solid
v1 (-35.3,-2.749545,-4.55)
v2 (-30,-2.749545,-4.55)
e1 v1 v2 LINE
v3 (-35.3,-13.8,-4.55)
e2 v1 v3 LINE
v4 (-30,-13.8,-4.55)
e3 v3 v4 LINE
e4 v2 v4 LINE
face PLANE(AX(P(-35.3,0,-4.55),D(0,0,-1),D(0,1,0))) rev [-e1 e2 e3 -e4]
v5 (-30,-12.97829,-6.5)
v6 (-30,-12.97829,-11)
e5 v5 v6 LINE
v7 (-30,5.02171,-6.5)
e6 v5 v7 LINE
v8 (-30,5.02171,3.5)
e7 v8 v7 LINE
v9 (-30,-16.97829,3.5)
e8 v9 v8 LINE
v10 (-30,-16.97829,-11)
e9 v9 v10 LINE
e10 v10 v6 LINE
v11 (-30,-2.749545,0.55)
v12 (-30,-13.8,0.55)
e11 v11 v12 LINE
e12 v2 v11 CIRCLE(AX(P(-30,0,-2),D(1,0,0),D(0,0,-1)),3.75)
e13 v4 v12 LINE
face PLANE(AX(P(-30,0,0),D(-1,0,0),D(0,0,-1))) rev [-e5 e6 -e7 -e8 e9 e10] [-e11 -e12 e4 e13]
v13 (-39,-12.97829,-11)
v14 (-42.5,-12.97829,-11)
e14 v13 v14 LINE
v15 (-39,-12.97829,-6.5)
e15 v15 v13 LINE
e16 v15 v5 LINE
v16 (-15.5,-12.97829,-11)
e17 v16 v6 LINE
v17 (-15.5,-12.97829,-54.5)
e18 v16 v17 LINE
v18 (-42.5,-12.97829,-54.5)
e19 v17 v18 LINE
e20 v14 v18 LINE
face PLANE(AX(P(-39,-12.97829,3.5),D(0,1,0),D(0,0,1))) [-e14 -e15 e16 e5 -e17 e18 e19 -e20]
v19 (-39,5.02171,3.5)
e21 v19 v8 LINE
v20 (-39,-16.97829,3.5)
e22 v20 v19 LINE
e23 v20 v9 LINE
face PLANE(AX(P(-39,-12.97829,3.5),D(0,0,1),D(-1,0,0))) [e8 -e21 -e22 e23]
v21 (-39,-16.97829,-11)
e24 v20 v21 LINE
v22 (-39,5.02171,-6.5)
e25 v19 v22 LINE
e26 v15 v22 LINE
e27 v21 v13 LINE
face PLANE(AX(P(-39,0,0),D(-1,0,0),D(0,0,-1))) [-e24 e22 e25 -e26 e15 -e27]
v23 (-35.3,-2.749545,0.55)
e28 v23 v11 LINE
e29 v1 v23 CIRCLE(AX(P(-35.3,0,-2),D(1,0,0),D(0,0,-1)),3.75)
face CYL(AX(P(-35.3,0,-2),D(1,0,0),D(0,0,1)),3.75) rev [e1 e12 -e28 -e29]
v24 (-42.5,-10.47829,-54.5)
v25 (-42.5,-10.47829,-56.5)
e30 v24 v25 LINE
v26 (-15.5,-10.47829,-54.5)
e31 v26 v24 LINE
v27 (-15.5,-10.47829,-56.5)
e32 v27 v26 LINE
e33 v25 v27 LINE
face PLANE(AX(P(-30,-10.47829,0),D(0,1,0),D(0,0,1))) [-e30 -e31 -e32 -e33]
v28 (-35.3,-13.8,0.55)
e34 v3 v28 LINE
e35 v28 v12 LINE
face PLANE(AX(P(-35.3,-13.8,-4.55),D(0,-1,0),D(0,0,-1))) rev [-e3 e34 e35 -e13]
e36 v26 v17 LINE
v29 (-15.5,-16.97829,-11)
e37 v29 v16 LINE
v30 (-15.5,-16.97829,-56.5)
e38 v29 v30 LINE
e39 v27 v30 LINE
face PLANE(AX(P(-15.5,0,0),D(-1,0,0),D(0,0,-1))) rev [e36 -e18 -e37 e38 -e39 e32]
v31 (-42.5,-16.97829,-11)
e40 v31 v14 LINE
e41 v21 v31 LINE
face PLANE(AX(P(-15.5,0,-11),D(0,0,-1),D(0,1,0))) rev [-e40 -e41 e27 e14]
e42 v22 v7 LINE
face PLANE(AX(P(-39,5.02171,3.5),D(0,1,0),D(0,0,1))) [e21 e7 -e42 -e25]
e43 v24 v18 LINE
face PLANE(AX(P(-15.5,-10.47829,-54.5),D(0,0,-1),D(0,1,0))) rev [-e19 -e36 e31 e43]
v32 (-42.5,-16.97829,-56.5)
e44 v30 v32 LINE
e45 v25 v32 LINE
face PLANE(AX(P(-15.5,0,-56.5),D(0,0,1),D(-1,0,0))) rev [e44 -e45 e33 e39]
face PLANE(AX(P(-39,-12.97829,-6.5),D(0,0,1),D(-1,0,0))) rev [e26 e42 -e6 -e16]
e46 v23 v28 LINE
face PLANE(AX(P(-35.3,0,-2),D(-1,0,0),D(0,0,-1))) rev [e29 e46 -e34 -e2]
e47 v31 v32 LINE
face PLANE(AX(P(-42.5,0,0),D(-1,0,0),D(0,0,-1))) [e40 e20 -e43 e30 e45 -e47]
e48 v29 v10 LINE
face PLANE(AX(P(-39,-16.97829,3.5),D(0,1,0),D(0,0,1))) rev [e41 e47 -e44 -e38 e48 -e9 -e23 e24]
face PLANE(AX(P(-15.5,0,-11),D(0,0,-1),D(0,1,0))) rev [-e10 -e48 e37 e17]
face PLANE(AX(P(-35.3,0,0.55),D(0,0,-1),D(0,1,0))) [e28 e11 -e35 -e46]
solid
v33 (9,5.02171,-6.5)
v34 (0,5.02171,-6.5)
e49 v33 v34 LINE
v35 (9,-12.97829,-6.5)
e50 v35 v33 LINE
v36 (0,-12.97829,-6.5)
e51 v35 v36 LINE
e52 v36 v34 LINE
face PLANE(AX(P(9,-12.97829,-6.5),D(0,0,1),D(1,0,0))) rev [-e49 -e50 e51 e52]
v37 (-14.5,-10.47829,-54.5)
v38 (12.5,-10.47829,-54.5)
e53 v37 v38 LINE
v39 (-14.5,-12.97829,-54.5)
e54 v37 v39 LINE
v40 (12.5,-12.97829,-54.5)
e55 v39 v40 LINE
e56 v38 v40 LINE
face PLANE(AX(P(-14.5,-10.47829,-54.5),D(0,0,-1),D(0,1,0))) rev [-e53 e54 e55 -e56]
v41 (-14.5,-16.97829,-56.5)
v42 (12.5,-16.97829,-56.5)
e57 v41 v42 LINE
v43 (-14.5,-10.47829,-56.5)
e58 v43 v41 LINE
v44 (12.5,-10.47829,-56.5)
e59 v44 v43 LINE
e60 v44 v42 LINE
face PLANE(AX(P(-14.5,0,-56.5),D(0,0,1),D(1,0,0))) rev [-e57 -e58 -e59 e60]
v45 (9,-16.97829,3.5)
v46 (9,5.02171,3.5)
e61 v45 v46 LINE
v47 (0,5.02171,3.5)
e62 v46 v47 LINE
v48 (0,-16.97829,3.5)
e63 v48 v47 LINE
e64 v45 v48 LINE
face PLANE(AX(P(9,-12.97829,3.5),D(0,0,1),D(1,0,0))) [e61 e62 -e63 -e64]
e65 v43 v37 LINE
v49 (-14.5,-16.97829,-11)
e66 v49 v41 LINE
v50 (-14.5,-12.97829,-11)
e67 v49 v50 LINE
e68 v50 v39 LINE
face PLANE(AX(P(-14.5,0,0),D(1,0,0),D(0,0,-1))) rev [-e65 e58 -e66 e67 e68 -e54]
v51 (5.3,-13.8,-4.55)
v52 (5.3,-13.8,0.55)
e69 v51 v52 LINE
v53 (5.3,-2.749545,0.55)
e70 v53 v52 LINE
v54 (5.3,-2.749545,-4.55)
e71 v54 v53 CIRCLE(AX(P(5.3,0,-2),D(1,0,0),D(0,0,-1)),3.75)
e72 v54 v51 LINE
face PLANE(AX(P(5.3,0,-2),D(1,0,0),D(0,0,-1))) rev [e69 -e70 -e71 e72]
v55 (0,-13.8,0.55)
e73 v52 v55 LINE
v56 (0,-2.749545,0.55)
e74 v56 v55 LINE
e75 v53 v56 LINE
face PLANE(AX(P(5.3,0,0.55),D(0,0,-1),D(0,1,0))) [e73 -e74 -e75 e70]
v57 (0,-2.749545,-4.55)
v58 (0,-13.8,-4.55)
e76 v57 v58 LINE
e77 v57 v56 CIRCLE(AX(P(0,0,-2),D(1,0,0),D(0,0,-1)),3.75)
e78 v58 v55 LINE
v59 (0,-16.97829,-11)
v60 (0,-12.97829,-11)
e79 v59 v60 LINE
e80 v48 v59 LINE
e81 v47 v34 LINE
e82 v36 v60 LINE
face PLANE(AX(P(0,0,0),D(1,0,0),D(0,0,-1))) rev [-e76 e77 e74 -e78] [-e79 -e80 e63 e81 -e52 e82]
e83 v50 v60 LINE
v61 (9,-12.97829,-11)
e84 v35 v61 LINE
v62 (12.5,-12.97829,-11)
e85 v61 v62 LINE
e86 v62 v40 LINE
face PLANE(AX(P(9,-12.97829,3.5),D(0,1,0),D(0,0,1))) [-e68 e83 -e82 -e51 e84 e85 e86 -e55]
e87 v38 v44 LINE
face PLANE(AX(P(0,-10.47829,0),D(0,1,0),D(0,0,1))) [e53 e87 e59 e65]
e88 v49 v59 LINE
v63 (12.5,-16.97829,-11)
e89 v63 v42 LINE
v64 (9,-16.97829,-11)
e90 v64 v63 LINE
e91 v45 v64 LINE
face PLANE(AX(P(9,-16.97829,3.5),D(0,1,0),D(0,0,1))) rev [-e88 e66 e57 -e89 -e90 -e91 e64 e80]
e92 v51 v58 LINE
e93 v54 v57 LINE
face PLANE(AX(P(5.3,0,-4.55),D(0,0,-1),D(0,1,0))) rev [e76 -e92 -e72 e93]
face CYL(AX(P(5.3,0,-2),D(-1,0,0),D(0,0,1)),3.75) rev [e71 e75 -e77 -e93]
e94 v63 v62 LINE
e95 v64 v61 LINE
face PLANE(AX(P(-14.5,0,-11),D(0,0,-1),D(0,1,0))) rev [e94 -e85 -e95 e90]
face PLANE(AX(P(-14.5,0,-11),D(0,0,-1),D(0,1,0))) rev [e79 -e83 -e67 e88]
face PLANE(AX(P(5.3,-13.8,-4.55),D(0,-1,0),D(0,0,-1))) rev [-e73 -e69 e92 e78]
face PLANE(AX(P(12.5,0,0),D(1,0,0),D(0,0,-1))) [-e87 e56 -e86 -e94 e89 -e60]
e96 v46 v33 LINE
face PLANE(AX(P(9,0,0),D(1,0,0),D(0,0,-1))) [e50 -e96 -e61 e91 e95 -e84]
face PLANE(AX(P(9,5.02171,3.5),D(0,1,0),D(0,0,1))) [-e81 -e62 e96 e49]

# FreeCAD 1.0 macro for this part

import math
import FreeCAD as App
import Part
import Sketcher
from FreeCAD import Vector
Q = App.Units.Quantity


def add_polygon(sketch, points):
    """Adds a closed chain of lines whose ends are joined by coincident constraints."""
    first, n = sketch.GeometryCount, len(points)
    for a, b in zip(points, points[1:] + points[:1]):
        sketch.addGeometry(Part.LineSegment(App.Vector(*a, 0), App.Vector(*b, 0)), False)
    for i in range(n):
        sketch.addConstraint(Sketcher.Constraint("Coincident", first + i, 2, first + (i + 1) % n, 1))

doc = App.newDocument("Part")
body = doc.addObject("PartDesign::Body", "Body")

# Sketch on YZ plane
sketch1 = body.newObject("Sketcher::SketchObject", "Sketch")
sketch1.AttachmentSupport = (doc.getObject("YZ_Plane"), [""])
sketch1.MapMode = "FlatFace"
add_polygon(sketch1, [(5, 3.5), (-17, 3.5), (-17, -11), (-13, -11), (-13, -6.5), (5, -6.5)])  # lines 0-5
sketch1.addConstraint(Sketcher.Constraint("Horizontal", 0))
sketch1.addConstraint(Sketcher.Constraint("Vertical", 1))
sketch1.addConstraint(Sketcher.Constraint("Horizontal", 2))
sketch1.addConstraint(Sketcher.Constraint("Vertical", 3))
sketch1.addConstraint(Sketcher.Constraint("Horizontal", 4))
sketch1.addConstraint(Sketcher.Constraint("Vertical", 5))
sketch1.addConstraint(Sketcher.Constraint("DistanceX", 0, 2, 0, 1, Q("22 mm")))
sketch1.addConstraint(Sketcher.Constraint("DistanceX", 2, 1, 2, 2, Q("4 mm")))
sketch1.addConstraint(Sketcher.Constraint("DistanceY", 5, 1, 5, 2, Q("10 mm")))
sketch1.addConstraint(Sketcher.Constraint("DistanceY", 1, 2, 1, 1, Q("14.5 mm")))
sketch1.addConstraint(Sketcher.Constraint("DistanceY", 1, 2, -1, 1, Q("11 mm")))
sketch1.addConstraint(Sketcher.Constraint("DistanceX", 0, 2, -1, 1, Q("16.97829 mm")))
pad1 = body.newObject("PartDesign::Pad", "Pad")
pad1.Profile = sketch1
pad1.Length = 9

# Sketch on YZ plane
sketch2 = body.newObject("Sketcher::SketchObject", "Sketch001")
sketch2.AttachmentSupport = (doc.getObject("YZ_Plane"), [""])
sketch2.MapMode = "FlatFace"
sketch2.addGeometry(Part.ArcOfCircle(Part.Circle(Vector(0, -2, 0), Vector(0, 0, 1), 3.8), math.radians(-137), math.radians(137)), False)
sketch2.addGeometry(Part.LineSegment(Vector(-2.7, 0.6, 0), Vector(-13.8, 0.6, 0)), False)
sketch2.addGeometry(Part.LineSegment(Vector(-13.8, 0.6, 0), Vector(-13.8, -4.5, 0)), False)
sketch2.addGeometry(Part.LineSegment(Vector(-13.8, -4.5, 0), Vector(-2.7, -4.5, 0)), False)
sketch2.addConstraint(Sketcher.Constraint("Coincident", 0, 2, 1, 1))
sketch2.addConstraint(Sketcher.Constraint("Coincident", 1, 2, 2, 1))
sketch2.addConstraint(Sketcher.Constraint("Coincident", 2, 2, 3, 1))
sketch2.addConstraint(Sketcher.Constraint("Coincident", 3, 2, 0, 1))
sketch2.addConstraint(Sketcher.Constraint("Horizontal", 1))
sketch2.addConstraint(Sketcher.Constraint("Vertical", 2))
sketch2.addConstraint(Sketcher.Constraint("Horizontal", 3))
sketch2.addConstraint(Sketcher.Constraint("PointOnObject", 0, 3, -2))
sketch2.addConstraint(Sketcher.Constraint("Vertical", 0, 2, 3, 2))
sketch2.addConstraint(Sketcher.Constraint("Radius", 0, Q("3.75 mm")))
sketch2.addConstraint(Sketcher.Constraint("DistanceY", 2, 2, 2, 1, Q("5.1 mm")))
sketch2.addConstraint(Sketcher.Constraint("DistanceY", 0, 3, -1, 1, Q("2 mm")))
sketch2.addConstraint(Sketcher.Constraint("DistanceX", 1, 2, -1, 1, Q("13.8 mm")))
pocket1 = body.newObject("PartDesign::Pocket", "Pocket")
pocket1.Profile = sketch2
pocket1.Length = 5.3
pocket1.Reversed = True

# Sketch on YZ plane
sketch3 = body.newObject("Sketcher::SketchObject", "Sketch002")
sketch3.AttachmentSupport = (doc.getObject("YZ_Plane"), [""])
sketch3.MapMode = "FlatFace"
add_polygon(sketch3, [(-13, -11), (-17, -11), (-17, -56.5), (-13, -56.5)])  # lines 0-3
sketch3.addConstraint(Sketcher.Constraint("Horizontal", 0))
sketch3.addConstraint(Sketcher.Constraint("Vertical", 1))
sketch3.addConstraint(Sketcher.Constraint("Horizontal", 2))
sketch3.addConstraint(Sketcher.Constraint("Vertical", 3))
sketch3.addConstraint(Sketcher.Constraint("DistanceX", 0, 2, 0, 1, Q("4 mm")))
sketch3.addConstraint(Sketcher.Constraint("DistanceY", 1, 2, 1, 1, Q("45.5 mm")))
sketch3.addConstraint(Sketcher.Constraint("DistanceY", 0, 2, -1, 1, Q("11 mm")))
sketch3.addConstraint(Sketcher.Constraint("DistanceX", 0, 2, -1, 1, Q("16.97829 mm")))
pad2 = body.newObject("PartDesign::Pad", "Pad001")
pad2.Profile = sketch3
pad2.Type = "TwoLengths"
pad2.Length = 12.5
pad2.Length2 = 14.5

# Sketch on XZ plane
sketch4 = body.newObject("Sketcher::SketchObject", "Sketch003")
sketch4.AttachmentSupport = (doc.getObject("XZ_Plane"), [""])
sketch4.MapMode = "FlatFace"
sketch4.AttachmentOffset = App.Placement(Vector(0, 0, 12.97829), App.Rotation())
add_polygon(sketch4, [(-14.5, -56.5), (-14.5, -54.5), (12.5, -54.5), (12.5, -56.5)])  # lines 0-3
sketch4.addConstraint(Sketcher.Constraint("Vertical", 0))
sketch4.addConstraint(Sketcher.Constraint("Horizontal", 1))
sketch4.addConstraint(Sketcher.Constraint("Vertical", 2))
sketch4.addConstraint(Sketcher.Constraint("Horizontal", 3))
sketch4.addConstraint(Sketcher.Constraint("DistanceX", 1, 1, 1, 2, Q("27 mm")))
sketch4.addConstraint(Sketcher.Constraint("DistanceY", 0, 1, 0, 2, Q("2 mm")))
sketch4.addConstraint(Sketcher.Constraint("DistanceX", 0, 2, -1, 1, Q("14.5 mm")))
sketch4.addConstraint(Sketcher.Constraint("DistanceY", 0, 2, -1, 1, Q("54.5 mm")))
pad3 = body.newObject("PartDesign::Pad", "Pad002")
pad3.Profile = sketch4
pad3.Length = 2.5
pad3.Reversed = True
body2 = doc.addObject("PartDesign::Body", "Body001")
doc.recompute()

mirroring = doc.addObject("Part::Mirroring", "Mirroring")
mirroring.Source = body
mirroring.Base = Vector(-15, 0, 0)
mirroring.Normal = Vector(1, 0, 0)
body2.BaseFeature = mirroring
doc.recompute()
mirroring.Visibility = False

doc.recompute()
